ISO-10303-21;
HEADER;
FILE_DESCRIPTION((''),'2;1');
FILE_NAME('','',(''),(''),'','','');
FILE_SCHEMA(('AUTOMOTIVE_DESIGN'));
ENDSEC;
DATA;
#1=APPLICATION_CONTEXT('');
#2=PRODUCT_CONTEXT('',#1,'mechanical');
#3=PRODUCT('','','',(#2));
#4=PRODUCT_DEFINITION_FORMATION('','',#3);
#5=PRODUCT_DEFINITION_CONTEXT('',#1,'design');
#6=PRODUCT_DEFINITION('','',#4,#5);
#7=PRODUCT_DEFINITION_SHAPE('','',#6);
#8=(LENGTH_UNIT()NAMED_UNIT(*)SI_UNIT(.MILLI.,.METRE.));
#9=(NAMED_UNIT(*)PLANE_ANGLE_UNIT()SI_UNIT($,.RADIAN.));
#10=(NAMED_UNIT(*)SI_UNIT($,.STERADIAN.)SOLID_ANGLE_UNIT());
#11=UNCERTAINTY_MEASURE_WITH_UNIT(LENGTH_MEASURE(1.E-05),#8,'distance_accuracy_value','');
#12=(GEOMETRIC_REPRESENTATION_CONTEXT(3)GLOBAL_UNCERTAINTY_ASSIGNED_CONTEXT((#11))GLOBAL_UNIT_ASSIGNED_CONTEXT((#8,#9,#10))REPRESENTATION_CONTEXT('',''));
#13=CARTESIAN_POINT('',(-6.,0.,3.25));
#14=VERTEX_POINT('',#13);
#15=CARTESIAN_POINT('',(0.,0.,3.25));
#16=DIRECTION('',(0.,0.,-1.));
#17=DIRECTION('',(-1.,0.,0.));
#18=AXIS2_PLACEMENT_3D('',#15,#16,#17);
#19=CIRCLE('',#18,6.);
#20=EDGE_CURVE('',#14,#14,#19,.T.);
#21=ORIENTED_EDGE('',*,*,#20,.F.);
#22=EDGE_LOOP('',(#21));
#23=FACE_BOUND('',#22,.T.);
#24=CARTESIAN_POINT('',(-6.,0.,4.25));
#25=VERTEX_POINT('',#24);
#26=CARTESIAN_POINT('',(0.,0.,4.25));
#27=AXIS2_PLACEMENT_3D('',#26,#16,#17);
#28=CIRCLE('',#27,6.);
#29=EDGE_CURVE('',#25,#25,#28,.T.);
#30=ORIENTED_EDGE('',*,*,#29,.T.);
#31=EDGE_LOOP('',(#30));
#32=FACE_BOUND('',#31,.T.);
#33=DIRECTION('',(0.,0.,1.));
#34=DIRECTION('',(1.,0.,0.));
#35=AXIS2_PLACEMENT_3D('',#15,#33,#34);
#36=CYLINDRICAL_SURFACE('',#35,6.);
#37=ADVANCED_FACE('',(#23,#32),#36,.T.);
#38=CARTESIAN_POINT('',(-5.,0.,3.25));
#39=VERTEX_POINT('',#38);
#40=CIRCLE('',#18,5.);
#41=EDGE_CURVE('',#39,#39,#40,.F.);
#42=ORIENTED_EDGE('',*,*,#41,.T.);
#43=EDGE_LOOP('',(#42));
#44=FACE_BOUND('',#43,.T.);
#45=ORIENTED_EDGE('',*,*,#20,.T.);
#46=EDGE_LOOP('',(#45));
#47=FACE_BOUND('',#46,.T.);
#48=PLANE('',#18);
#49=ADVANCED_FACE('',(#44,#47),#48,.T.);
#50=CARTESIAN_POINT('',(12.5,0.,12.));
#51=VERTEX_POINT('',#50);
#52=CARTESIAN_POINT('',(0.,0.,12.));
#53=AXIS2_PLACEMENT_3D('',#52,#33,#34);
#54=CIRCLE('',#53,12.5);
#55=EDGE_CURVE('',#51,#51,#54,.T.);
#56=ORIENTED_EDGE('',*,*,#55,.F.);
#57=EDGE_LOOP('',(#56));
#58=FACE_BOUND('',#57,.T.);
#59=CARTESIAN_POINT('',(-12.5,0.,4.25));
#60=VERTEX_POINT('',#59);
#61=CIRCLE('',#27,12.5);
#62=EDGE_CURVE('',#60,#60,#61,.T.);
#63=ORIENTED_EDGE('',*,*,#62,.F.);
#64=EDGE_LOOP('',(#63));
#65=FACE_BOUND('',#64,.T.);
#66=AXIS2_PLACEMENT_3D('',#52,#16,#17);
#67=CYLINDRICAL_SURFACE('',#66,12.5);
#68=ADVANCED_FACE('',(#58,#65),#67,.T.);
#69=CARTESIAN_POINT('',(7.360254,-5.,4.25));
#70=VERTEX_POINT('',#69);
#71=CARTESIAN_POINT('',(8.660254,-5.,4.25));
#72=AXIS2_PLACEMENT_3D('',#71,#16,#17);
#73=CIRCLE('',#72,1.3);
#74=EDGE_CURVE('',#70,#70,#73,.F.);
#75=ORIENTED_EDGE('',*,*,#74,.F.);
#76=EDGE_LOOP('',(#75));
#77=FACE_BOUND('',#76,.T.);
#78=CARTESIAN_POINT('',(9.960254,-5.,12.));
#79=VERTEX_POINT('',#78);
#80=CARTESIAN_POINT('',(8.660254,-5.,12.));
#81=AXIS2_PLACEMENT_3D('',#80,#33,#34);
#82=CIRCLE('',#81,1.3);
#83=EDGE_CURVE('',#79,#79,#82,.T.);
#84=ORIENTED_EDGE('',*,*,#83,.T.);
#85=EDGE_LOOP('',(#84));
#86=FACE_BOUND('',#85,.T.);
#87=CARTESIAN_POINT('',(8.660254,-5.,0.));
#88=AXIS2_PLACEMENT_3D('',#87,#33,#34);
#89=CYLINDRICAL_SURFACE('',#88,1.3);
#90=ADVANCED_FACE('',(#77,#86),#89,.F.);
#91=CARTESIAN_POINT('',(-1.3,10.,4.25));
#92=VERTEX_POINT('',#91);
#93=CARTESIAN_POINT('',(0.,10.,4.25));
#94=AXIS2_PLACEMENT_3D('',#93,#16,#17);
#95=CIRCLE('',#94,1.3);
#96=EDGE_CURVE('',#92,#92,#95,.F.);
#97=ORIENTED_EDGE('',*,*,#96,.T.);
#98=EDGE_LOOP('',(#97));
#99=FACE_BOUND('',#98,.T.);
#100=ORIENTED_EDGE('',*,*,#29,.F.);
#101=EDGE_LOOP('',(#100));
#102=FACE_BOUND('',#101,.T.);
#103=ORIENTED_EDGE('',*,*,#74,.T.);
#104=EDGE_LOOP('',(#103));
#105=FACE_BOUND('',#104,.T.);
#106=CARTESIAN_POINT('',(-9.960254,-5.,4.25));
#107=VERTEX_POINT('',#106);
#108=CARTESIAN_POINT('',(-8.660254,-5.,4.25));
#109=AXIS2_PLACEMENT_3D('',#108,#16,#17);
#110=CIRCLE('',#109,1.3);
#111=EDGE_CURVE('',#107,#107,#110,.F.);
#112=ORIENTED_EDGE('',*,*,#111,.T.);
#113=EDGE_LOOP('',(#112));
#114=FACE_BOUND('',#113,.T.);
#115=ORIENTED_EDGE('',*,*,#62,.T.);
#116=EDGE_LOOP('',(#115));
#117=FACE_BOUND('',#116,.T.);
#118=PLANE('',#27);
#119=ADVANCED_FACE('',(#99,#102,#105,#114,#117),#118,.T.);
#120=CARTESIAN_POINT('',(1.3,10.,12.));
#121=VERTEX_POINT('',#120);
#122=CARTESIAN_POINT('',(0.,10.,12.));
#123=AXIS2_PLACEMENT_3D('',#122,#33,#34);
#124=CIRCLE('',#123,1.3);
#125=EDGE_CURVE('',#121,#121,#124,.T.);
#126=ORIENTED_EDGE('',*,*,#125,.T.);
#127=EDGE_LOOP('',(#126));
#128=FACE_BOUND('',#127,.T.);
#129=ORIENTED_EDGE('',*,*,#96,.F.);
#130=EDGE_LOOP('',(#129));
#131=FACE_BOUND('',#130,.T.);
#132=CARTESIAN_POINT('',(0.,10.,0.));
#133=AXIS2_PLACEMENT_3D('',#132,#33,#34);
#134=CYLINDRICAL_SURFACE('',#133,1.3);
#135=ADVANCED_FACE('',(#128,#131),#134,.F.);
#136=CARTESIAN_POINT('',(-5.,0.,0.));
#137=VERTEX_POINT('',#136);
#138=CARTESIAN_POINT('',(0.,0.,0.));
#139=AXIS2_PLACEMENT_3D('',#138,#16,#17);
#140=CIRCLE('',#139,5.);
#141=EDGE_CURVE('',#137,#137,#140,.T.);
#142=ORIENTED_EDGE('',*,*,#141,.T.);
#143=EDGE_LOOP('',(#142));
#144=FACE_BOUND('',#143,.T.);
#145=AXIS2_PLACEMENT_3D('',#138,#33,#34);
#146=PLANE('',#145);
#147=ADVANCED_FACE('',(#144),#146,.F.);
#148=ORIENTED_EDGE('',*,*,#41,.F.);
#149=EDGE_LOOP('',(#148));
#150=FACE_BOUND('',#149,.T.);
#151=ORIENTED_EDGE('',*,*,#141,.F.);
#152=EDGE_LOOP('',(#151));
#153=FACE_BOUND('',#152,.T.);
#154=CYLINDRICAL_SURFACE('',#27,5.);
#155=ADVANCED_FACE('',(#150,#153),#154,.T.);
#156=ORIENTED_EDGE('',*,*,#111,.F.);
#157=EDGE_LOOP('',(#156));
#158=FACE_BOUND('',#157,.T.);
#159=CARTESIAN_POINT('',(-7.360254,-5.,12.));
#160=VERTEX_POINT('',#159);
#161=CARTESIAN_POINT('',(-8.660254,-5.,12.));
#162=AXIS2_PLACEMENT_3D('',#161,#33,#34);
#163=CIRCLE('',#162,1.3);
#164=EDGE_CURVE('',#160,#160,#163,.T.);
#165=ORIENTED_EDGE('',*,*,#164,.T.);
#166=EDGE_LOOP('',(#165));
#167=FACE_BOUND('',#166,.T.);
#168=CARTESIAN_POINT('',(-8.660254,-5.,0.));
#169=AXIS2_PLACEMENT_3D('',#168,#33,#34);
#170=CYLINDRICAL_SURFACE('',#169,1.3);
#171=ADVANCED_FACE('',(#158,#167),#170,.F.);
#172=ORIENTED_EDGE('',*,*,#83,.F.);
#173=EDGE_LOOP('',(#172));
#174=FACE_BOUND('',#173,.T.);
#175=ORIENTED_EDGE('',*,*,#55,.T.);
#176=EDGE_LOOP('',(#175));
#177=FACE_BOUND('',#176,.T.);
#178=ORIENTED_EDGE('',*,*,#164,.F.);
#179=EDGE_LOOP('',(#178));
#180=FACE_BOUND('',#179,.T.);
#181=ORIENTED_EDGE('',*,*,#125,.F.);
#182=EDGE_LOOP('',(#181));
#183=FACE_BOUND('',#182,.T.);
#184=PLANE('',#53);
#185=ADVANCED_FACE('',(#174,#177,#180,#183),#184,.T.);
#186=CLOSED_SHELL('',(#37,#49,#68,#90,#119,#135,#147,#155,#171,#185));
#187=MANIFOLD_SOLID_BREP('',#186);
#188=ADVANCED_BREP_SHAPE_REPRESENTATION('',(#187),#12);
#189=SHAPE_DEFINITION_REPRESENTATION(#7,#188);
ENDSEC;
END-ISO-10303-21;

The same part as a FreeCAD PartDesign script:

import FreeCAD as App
import Part
import Sketcher

V = App.Vector

doc = App.newDocument("Part")
body = doc.addObject("PartDesign::Body", "Body")

sketch1 = body.newObject("Sketcher::SketchObject", "Sketch")
sketch1.AttachmentSupport = (doc.getObject("XY_Plane"), [""])
sketch1.MapMode = "FlatFace"
sketch1.addGeometry(Part.Circle(V(0, 0, 0), V(0, 0, 1), 12.5), False)
sketch1.addConstraint(Sketcher.Constraint("Coincident", 0, 3, -1, 1))
sketch1.addConstraint(Sketcher.Constraint("Diameter", 0, 25.0))
pad1 = body.newObject("PartDesign::Pad", "Pad")
pad1.Profile = sketch1
pad1.Length = 12

sketch2 = body.newObject("Sketcher::SketchObject", "Sketch001")
sketch2.AttachmentSupport = (doc.getObject("XY_Plane"), [""])
sketch2.MapMode = "FlatFace"
sketch2.AttachmentOffset = App.Placement(V(0, 0, 12), App.Rotation())
sketch2.addGeometry(Part.Circle(V(0, 10, 0), V(0, 0, 1), 1.3), False)
sketch2.addGeometry(Part.Circle(V(8.660254, -5, 0), V(0, 0, 1), 1.3), False)
sketch2.addGeometry(Part.Circle(V(-8.660254, -5, 0), V(0, 0, 1), 1.3), False)
sketch2.addConstraint(Sketcher.Constraint("Equal", 0, 1))
sketch2.addConstraint(Sketcher.Constraint("Equal", 1, 2))
sketch2.addConstraint(Sketcher.Constraint("Symmetric", 1, 3, 2, 3, -2))
sketch2.addConstraint(Sketcher.Constraint("PointOnObject", 0, 3, -2))
sketch2.addConstraint(Sketcher.Constraint("Diameter", 0, 2.6))
sketch2.addConstraint(Sketcher.Constraint("DistanceY", -1, 1, 0, 3, 10.0))
sketch2.addConstraint(Sketcher.Constraint("DistanceY", 1, 3, -1, 1, 5.0))
sketch2.addConstraint(Sketcher.Constraint("DistanceX", 2, 3, 1, 3, 17.320508))
pocket1 = body.newObject("PartDesign::Pocket", "Pocket")
pocket1.Profile = sketch2
pocket1.Type = "ThroughAll"

sketch3 = body.newObject("Sketcher::SketchObject", "Sketch002")
sketch3.AttachmentSupport = (doc.getObject("XY_Plane"), [""])
sketch3.MapMode = "FlatFace"
sketch3.addGeometry(Part.Circle(V(0, 0, 0), V(0, 0, 1), 12.5), False)
sketch3.addGeometry(Part.Circle(V(0, 0, 0), V(0, 0, 1), 5), False)
sketch3.addConstraint(Sketcher.Constraint("Coincident", 0, 3, -1, 1))
sketch3.addConstraint(Sketcher.Constraint("Coincident", 1, 3, -1, 1))
sketch3.addConstraint(Sketcher.Constraint("Diameter", 0, 25.0))
sketch3.addConstraint(Sketcher.Constraint("Diameter", 1, 10.0))
pocket2 = body.newObject("PartDesign::Pocket", "Pocket001")
pocket2.Profile = sketch3
pocket2.Length = 4.25
pocket2.Reversed = True

sketch4 = body.newObject("Sketcher::SketchObject", "Sketch003")
sketch4.AttachmentSupport = (doc.getObject("XY_Plane"), [""])
sketch4.MapMode = "FlatFace"
sketch4.AttachmentOffset = App.Placement(V(0, 0, 3.25), App.Rotation())
sketch4.addGeometry(Part.Circle(V(0, 0, 0), V(0, 0, 1), 6), False)
sketch4.addGeometry(Part.Circle(V(0, 0, 0), V(0, 0, 1), 5), False)
sketch4.addConstraint(Sketcher.Constraint("Coincident", 0, 3, -1, 1))
sketch4.addConstraint(Sketcher.Constraint("Coincident", 1, 3, -1, 1))
sketch4.addConstraint(Sketcher.Constraint("Diameter", 0, 12.0))
sketch4.addConstraint(Sketcher.Constraint("Diameter", 1, 10.0))
pad2 = body.newObject("PartDesign::Pad", "Pad001")
pad2.Profile = sketch4
pad2.Length = 1

doc.recompute()
